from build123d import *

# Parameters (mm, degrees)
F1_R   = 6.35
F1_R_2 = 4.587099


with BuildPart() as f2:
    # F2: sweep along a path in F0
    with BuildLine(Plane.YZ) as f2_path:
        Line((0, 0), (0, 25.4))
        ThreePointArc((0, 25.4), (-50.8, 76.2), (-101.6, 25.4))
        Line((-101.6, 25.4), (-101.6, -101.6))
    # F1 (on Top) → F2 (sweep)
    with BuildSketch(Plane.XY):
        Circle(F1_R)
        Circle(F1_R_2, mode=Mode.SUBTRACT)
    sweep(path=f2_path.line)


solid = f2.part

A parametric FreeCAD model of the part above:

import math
import FreeCAD as App
import Part
import Sketcher

V = App.Vector
Q = App.Units.Quantity

doc = App.newDocument("Part")
body = doc.addObject("PartDesign::Body", "Body")

sketch1 = body.newObject("Sketcher::SketchObject", "Sketch")
sketch1.AttachmentSupport = (doc.getObject("XY_Plane"), [""])
sketch1.MapMode = "FlatFace"
sketch1.addGeometry([
    Part.Circle(V(0, 0, 0), V(0, 0, 1), 6.3),
    Part.Circle(V(0, 0, 0), V(0, 0, 1), 4.6),
], False)
sketch1.addConstraint([
    Sketcher.Constraint("Coincident", 0, 3, -1, 1),
    Sketcher.Constraint("Coincident", 1, 3, -1, 1),
    Sketcher.Constraint("Diameter", 0, Q("0.5 in")),
    Sketcher.Constraint("Diameter", 1, Q("9.174198 mm")),
])

sketch2 = body.newObject("Sketcher::SketchObject", "Sketch001")
sketch2.AttachmentSupport = (doc.getObject("YZ_Plane"), [""])
sketch2.MapMode = "FlatFace"
sketch2.addGeometry([
    Part.LineSegment(V(0, 0, 0), V(0, 25, 0)),
    Part.ArcOfCircle(Part.Circle(V(-51, 25, 0), V(0, 0, 1), 51), math.radians(0), math.radians(180)),
    Part.LineSegment(V(-102, 25, 0), V(-102, -102, 0)),
], False)
sketch2.addConstraint([
    Sketcher.Constraint("Tangent", 0, 2, 1, 1),
    Sketcher.Constraint("Tangent", 1, 2, 2, 1),
    Sketcher.Constraint("Vertical", 0),
    Sketcher.Constraint("Vertical", 2),
    Sketcher.Constraint("Coincident", 0, 1, -1, 1),
    Sketcher.Constraint("Radius", 1, Q("2 in")),
    Sketcher.Constraint("DistanceY", 0, 1, 0, 2, Q("1 in")),
    Sketcher.Constraint("DistanceY", 2, 2, 2, 1, Q("5 in")),
])
doc.recompute()

additivepipe = body.newObject("PartDesign::AdditivePipe", "AdditivePipe")
additivepipe.Profile = sketch1
additivepipe.Spine = (sketch2, ["Edge1", "Edge2", "Edge3"])

doc.recompute()
